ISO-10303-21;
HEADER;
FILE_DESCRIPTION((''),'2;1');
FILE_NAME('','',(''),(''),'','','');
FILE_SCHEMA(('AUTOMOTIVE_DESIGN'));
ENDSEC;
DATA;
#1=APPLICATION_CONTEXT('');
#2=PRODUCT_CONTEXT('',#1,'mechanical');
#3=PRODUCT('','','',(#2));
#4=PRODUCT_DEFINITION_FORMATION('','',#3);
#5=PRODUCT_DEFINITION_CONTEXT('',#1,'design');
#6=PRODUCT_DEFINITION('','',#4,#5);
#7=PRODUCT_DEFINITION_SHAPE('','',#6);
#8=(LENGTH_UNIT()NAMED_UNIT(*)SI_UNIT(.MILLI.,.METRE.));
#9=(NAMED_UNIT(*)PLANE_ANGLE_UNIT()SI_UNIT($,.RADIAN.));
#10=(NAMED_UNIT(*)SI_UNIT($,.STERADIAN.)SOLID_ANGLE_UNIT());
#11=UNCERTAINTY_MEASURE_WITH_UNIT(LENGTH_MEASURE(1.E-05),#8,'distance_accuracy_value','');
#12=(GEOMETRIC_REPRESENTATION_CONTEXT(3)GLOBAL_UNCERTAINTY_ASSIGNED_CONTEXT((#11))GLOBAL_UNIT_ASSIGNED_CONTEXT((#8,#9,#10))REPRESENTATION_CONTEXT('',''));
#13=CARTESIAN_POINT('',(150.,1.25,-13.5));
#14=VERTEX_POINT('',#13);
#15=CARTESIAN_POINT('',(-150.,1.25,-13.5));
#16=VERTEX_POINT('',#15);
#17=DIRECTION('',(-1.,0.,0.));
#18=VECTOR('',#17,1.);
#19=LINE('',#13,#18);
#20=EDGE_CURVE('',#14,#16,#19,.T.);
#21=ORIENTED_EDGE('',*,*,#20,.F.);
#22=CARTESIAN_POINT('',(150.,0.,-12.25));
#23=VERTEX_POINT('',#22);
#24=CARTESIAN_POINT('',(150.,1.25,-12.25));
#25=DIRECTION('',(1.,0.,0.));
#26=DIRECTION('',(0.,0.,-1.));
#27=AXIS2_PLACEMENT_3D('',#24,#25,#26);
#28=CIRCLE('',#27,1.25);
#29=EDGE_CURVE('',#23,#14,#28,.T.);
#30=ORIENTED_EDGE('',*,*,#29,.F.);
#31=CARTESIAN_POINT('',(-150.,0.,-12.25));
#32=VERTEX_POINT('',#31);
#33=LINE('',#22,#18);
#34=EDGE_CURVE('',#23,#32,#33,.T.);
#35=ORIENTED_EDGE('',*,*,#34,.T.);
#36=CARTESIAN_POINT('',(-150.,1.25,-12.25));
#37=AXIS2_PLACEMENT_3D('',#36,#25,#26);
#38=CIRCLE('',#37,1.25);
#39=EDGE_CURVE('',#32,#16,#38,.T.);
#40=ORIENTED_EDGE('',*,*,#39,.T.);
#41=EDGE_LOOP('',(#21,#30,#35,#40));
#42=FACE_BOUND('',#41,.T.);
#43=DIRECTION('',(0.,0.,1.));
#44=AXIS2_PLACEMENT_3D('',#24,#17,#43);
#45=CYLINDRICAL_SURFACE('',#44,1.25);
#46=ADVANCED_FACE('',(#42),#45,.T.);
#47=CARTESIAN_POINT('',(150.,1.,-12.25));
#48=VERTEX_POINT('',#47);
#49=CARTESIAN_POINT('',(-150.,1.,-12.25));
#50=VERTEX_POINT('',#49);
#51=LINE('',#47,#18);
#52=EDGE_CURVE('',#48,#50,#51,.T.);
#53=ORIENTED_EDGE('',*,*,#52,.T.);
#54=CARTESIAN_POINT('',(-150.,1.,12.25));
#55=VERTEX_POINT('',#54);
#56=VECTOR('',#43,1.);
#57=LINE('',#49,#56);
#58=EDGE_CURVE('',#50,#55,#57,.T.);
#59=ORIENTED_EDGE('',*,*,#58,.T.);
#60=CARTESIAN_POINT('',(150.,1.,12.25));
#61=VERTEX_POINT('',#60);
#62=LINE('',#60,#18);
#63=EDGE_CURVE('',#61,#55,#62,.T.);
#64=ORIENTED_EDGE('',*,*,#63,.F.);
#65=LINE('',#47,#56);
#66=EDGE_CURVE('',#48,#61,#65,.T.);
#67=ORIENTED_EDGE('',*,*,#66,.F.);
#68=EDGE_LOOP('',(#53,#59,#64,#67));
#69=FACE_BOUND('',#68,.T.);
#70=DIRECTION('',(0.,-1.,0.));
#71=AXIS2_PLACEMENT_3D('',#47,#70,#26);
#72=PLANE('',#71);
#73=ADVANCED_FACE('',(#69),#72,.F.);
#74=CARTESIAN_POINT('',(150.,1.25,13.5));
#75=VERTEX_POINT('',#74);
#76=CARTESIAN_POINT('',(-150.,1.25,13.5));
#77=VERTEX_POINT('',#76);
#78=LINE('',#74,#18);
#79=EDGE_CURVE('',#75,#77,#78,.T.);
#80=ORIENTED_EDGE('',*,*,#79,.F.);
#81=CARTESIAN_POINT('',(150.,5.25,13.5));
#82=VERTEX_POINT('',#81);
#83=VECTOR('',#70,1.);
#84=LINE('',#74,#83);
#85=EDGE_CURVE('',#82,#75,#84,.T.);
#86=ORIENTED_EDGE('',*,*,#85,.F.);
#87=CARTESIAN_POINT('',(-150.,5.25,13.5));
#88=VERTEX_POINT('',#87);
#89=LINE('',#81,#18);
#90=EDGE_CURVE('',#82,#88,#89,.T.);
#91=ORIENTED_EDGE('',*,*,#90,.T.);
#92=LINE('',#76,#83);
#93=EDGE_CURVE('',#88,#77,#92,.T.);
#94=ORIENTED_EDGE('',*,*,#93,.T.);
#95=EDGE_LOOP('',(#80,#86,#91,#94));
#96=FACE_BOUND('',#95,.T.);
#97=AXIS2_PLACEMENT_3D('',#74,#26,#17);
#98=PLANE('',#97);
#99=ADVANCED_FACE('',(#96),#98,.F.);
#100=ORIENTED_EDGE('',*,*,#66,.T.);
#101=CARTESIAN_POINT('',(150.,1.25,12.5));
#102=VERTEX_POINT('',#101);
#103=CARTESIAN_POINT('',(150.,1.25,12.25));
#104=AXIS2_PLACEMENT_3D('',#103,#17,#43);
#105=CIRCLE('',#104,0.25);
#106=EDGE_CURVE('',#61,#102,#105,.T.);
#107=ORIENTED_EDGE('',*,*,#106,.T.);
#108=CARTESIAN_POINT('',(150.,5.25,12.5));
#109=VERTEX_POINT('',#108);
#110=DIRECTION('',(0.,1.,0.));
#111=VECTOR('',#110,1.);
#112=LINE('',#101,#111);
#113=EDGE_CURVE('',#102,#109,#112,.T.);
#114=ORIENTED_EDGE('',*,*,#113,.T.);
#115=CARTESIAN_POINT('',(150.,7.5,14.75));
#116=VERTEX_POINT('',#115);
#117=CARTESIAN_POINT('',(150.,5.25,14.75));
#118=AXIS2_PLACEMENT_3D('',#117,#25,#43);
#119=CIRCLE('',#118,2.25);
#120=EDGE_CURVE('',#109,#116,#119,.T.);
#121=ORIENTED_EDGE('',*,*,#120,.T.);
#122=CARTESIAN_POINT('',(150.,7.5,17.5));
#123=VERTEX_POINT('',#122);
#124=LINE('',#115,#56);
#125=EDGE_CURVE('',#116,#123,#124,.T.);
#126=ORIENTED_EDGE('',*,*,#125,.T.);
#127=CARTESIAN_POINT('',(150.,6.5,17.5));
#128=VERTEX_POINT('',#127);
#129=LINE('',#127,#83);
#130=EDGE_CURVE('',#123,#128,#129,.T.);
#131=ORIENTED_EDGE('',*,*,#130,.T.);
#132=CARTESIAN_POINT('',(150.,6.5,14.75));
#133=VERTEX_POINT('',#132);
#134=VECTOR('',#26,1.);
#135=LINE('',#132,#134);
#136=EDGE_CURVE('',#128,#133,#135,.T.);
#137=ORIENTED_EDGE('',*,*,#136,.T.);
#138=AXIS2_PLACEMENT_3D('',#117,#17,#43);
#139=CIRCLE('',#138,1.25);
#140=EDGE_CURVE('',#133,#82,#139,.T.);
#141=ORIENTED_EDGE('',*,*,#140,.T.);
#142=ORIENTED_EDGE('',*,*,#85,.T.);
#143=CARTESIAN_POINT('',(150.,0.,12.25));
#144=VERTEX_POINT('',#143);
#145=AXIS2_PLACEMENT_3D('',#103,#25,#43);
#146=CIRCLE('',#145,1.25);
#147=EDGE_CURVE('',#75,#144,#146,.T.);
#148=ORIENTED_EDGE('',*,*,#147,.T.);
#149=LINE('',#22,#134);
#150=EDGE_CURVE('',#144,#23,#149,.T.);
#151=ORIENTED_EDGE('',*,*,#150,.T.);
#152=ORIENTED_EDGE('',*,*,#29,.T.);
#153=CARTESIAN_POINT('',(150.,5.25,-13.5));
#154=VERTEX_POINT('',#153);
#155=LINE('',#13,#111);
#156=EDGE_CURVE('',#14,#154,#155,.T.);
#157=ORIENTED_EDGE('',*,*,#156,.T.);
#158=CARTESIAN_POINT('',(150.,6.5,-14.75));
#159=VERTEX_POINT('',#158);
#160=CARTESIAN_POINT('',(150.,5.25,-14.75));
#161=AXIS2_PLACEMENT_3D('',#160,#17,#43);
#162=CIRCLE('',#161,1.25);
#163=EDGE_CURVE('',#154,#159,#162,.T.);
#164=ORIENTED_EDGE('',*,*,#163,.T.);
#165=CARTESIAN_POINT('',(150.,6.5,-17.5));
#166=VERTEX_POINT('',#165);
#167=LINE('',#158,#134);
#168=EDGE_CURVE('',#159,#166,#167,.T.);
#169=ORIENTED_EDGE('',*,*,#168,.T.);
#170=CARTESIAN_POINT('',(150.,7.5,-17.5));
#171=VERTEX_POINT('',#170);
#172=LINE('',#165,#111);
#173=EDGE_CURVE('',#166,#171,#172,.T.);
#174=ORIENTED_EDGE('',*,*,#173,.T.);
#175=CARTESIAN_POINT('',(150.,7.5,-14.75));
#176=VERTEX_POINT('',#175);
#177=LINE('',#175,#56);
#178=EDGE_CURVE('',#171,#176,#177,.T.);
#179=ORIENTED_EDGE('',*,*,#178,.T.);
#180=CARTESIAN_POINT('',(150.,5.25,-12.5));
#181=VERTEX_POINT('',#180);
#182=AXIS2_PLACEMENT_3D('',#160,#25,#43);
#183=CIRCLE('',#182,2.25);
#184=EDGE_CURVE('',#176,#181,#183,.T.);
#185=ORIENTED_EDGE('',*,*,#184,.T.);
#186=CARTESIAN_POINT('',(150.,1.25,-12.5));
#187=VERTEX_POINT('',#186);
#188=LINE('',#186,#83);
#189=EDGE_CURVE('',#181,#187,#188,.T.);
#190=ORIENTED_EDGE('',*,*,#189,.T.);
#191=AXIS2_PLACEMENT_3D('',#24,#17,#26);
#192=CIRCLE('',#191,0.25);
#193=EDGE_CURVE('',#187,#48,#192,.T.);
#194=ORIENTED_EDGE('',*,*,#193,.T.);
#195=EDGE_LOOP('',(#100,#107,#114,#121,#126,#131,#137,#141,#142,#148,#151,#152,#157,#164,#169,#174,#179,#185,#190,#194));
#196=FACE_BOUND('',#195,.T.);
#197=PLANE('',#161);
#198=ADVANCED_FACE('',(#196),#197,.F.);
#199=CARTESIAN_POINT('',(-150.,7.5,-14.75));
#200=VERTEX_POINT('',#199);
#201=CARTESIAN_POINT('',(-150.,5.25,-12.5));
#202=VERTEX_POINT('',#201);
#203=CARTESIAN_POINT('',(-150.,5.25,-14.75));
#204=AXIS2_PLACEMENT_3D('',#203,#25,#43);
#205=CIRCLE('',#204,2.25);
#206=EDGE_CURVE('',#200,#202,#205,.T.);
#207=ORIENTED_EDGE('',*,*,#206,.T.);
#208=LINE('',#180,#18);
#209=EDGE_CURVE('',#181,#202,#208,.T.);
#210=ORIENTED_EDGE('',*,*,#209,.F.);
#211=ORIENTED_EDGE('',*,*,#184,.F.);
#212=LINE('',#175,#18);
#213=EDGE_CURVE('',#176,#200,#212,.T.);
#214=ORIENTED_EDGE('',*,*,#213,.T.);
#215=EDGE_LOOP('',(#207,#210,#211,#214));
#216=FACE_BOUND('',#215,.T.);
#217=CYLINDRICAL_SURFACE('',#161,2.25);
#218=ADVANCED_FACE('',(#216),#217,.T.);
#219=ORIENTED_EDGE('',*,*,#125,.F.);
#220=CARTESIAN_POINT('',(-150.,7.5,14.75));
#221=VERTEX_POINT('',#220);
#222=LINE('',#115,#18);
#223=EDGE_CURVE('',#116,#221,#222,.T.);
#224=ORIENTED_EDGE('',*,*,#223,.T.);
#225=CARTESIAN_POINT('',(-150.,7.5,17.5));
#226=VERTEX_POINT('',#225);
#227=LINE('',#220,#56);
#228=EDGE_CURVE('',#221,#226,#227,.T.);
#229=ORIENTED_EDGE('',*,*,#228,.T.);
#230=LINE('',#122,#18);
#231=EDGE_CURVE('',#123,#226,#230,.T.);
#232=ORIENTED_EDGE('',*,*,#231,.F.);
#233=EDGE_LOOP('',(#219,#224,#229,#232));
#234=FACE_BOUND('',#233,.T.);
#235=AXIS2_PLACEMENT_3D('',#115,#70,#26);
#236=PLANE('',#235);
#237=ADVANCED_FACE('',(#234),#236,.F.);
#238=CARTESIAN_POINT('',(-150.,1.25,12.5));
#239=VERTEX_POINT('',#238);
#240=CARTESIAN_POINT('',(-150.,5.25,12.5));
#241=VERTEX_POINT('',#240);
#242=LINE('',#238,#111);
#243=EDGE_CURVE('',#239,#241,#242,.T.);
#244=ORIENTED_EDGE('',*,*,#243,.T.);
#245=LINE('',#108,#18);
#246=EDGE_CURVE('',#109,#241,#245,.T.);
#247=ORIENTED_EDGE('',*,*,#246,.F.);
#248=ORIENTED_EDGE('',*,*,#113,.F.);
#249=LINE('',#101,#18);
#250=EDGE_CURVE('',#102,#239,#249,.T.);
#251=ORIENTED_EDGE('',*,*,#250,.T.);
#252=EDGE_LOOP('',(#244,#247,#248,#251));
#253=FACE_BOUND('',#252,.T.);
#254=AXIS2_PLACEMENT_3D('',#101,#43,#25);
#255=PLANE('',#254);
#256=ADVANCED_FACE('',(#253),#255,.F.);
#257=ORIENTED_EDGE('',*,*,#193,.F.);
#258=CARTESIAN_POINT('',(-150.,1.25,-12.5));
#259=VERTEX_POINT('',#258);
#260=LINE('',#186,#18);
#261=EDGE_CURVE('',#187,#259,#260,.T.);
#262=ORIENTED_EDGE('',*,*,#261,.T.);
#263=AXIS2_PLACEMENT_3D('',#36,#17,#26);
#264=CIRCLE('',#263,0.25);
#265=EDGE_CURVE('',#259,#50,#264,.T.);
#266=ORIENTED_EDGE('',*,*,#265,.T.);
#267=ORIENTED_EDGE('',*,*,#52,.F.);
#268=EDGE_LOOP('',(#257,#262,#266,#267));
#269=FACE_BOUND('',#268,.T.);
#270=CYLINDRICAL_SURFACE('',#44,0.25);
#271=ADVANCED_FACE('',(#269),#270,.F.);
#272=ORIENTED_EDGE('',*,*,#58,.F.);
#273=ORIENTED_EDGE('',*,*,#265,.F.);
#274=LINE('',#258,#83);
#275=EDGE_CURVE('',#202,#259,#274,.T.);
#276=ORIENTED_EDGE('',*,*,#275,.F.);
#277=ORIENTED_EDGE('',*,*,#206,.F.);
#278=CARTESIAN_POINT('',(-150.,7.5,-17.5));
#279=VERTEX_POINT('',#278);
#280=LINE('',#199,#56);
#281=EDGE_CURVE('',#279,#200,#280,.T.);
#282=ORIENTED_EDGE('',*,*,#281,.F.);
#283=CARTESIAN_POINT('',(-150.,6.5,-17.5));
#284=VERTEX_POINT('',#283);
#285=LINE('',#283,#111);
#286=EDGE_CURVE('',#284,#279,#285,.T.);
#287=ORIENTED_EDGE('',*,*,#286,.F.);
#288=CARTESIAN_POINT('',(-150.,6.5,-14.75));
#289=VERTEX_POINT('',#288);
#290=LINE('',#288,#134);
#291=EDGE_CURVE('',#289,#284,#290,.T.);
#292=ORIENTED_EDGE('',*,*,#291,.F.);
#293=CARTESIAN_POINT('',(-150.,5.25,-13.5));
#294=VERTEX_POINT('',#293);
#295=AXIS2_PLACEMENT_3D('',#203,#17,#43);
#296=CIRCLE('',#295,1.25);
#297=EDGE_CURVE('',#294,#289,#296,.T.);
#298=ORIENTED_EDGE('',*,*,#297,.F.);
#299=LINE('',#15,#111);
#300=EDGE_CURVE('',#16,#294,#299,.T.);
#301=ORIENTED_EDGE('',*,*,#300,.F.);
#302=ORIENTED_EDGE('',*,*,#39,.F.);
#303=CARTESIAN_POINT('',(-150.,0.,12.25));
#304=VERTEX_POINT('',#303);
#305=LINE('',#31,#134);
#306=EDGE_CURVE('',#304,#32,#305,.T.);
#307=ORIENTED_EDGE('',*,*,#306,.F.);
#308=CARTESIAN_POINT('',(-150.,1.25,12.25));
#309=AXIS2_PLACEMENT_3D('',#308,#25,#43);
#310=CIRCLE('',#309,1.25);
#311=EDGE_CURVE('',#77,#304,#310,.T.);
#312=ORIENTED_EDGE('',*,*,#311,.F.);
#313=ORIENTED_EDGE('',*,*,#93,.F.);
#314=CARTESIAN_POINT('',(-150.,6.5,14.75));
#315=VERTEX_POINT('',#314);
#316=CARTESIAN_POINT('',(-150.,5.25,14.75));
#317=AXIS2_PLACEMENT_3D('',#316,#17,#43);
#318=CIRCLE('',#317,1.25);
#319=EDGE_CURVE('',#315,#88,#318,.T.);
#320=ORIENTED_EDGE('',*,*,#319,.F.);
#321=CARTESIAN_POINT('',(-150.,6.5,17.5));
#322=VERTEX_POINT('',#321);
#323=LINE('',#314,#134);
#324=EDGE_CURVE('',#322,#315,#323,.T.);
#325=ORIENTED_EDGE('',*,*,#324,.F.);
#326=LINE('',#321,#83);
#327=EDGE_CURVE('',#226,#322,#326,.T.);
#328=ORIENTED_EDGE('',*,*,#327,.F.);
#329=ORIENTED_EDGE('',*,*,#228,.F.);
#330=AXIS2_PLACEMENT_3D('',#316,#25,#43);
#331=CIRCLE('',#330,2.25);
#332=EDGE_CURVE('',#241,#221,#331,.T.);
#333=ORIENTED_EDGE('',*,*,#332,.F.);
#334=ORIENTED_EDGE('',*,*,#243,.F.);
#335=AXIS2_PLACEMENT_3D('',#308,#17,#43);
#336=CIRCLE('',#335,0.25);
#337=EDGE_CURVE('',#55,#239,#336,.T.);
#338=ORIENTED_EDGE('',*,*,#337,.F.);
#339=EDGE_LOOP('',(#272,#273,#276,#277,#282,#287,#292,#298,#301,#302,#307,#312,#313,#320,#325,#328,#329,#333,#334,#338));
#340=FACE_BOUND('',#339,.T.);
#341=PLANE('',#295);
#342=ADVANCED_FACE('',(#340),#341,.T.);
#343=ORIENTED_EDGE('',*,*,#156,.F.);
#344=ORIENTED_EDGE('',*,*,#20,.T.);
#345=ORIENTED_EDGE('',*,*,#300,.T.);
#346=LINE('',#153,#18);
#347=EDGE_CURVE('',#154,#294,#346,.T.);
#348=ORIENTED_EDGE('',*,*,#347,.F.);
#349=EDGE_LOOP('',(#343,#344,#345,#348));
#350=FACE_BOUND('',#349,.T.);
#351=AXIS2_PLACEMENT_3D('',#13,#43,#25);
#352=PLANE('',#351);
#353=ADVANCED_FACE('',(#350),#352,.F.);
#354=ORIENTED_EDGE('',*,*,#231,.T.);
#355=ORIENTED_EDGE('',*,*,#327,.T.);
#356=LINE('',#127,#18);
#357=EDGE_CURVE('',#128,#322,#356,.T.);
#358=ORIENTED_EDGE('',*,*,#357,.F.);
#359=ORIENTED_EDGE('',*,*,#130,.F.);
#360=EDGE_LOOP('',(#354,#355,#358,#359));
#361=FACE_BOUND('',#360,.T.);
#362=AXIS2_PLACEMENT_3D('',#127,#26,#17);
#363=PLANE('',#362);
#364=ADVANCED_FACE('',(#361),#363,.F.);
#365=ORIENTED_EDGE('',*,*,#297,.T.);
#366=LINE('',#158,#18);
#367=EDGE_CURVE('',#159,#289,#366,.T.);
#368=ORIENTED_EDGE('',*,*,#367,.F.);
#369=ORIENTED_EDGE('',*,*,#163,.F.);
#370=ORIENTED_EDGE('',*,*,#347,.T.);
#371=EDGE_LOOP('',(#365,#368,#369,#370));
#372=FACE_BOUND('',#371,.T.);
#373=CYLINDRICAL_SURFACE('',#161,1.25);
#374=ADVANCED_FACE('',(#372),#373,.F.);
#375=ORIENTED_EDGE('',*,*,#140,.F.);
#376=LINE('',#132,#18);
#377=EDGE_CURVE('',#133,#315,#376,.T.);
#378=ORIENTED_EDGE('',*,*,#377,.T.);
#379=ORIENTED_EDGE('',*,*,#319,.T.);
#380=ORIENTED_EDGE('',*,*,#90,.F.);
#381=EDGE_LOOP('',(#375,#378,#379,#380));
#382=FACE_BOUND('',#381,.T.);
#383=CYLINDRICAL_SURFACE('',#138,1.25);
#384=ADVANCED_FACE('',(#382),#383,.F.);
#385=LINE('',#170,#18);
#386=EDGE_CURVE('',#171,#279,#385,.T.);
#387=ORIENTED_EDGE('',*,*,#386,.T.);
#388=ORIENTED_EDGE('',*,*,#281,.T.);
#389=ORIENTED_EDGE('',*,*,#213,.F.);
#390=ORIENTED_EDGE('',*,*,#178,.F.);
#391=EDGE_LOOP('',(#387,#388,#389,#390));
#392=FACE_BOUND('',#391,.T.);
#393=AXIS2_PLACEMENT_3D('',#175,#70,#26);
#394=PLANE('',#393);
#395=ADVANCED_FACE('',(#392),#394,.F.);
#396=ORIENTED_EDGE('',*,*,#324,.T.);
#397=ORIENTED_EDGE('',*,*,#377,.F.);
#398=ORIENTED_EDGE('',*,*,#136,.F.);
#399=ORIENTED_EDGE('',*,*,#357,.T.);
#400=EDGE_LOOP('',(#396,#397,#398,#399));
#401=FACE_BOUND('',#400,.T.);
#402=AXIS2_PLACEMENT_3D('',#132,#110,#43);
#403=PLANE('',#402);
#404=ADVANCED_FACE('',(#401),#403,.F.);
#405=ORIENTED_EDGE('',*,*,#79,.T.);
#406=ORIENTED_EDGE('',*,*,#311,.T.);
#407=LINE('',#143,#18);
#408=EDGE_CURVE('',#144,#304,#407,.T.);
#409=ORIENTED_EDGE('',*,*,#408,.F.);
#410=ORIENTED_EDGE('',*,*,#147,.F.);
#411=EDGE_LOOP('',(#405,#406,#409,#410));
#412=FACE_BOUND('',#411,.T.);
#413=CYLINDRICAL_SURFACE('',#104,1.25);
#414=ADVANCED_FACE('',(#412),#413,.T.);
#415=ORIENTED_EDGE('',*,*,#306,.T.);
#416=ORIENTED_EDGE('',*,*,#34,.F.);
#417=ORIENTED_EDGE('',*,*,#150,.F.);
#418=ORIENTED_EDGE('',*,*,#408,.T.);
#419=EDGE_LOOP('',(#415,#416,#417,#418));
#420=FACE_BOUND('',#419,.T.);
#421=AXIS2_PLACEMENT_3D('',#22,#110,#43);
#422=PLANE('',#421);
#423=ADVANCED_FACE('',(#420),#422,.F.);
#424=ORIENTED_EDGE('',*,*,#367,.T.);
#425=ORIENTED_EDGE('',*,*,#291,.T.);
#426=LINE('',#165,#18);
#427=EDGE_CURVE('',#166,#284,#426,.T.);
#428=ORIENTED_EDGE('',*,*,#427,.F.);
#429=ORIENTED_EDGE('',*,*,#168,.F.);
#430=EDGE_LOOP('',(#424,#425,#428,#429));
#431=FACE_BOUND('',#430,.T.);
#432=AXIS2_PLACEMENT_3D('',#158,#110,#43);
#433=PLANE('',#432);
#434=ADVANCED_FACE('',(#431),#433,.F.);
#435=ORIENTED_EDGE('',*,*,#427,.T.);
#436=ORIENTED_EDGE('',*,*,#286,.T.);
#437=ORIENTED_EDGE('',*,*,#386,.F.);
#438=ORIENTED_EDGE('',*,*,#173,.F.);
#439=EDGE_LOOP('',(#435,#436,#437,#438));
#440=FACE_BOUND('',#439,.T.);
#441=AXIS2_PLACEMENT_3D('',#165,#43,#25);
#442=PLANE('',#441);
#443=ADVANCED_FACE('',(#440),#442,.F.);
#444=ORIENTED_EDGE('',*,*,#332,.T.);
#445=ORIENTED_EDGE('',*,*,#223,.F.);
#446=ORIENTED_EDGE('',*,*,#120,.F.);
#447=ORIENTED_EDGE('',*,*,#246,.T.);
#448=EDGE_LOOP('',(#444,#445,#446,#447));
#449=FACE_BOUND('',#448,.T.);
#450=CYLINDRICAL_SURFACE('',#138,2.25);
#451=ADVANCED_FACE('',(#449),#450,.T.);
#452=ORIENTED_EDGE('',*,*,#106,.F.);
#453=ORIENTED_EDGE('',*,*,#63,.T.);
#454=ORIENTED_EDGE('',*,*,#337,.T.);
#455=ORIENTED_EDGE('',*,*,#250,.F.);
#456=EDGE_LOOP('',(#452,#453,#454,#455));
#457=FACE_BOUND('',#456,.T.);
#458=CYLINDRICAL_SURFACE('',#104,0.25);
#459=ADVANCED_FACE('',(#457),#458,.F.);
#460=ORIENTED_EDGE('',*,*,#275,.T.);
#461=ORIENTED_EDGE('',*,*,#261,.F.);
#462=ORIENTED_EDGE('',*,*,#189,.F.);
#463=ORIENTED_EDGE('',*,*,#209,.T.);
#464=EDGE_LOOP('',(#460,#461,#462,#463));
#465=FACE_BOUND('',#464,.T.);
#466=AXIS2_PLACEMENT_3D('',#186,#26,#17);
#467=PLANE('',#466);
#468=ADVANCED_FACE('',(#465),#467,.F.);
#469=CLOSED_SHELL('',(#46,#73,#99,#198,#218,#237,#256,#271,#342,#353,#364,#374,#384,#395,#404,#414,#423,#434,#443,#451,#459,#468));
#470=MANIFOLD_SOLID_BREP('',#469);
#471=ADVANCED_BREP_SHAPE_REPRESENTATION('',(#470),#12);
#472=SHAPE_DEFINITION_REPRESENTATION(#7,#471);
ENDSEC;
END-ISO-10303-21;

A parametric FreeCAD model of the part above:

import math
import FreeCAD as App
import Part
import Sketcher

V = App.Vector

doc = App.newDocument("Part")
body = doc.addObject("PartDesign::Body", "Body")

# Sketch on YZ plane
sketch1 = doc.addObject("Sketcher::SketchObject", "Sketch")
body.addObject(sketch1)
sketch1.AttachmentSupport = (doc.YZ_Plane, [""])
sketch1.MapMode = "FlatFace"
sketch1.AttachmentOffset = App.Placement(V(0, 0, -150), App.Rotation())
sketch1.addGeometry([
    Part.LineSegment(V(0, 12.25, 0), V(0, -12.25, 0)),  # 0
    Part.ArcOfCircle(Part.Circle(V(1.25, -12.25, 0), V(0, 0, 1), 1.25), math.radians(-180), math.radians(-90)),  # 1
    Part.LineSegment(V(1.25, -13.5, 0), V(5.25, -13.5, 0)),  # 2
    Part.ArcOfCircle(Part.Circle(V(5.25, -14.75, 0), V(0, 0, 1), 1.25), math.radians(0), math.radians(90)),  # 3
    Part.LineSegment(V(6.5, -14.75, 0), V(6.5, -17.5, 0)),  # 4
    Part.LineSegment(V(6.5, -17.5, 0), V(7.5, -17.5, 0)),  # 5
    Part.LineSegment(V(7.5, -17.5, 0), V(7.5, -14.75, 0)),  # 6
    Part.ArcOfCircle(Part.Circle(V(5.25, -14.75, 0), V(0, 0, 1), 2.25), math.radians(0), math.radians(90)),  # 7
    Part.LineSegment(V(5.25, -12.5, 0), V(1.25, -12.5, 0)),  # 8
    Part.ArcOfCircle(Part.Circle(V(1.25, -12.25, 0), V(0, 0, 1), 0.25), math.radians(-180), math.radians(-90)),  # 9
    Part.LineSegment(V(1, -12.25, 0), V(1, 12.25, 0)),  # 10
    Part.ArcOfCircle(Part.Circle(V(1.25, 12.25, 0), V(0, 0, 1), 0.25), math.radians(90), math.radians(180)),  # 11
    Part.LineSegment(V(1.25, 12.5, 0), V(5.25, 12.5, 0)),  # 12
    Part.ArcOfCircle(Part.Circle(V(5.25, 14.75, 0), V(0, 0, 1), 2.25), math.radians(-90), math.radians(0)),  # 13
    Part.LineSegment(V(7.5, 14.75, 0), V(7.5, 17.5, 0)),  # 14
    Part.LineSegment(V(7.5, 17.5, 0), V(6.5, 17.5, 0)),  # 15
    Part.LineSegment(V(6.5, 17.5, 0), V(6.5, 14.75, 0)),  # 16
    Part.ArcOfCircle(Part.Circle(V(5.25, 14.75, 0), V(0, 0, 1), 1.25), math.radians(-90), math.radians(0)),  # 17
    Part.LineSegment(V(5.25, 13.5, 0), V(1.25, 13.5, 0)),  # 18
    Part.ArcOfCircle(Part.Circle(V(1.25, 12.25, 0), V(0, 0, 1), 1.25), math.radians(90), math.radians(180)),  # 19
], False)
sketch1.addConstraint([
    Sketcher.Constraint("Tangent", 0, 2, 1, 1),
    Sketcher.Constraint("Tangent", 1, 2, 2, 1),
    Sketcher.Constraint("Tangent", 2, 2, 3, 2),
    Sketcher.Constraint("Tangent", 3, 1, 4, 1),
    Sketcher.Constraint("Coincident", 4, 2, 5, 1),
    Sketcher.Constraint("Coincident", 5, 2, 6, 1),
    Sketcher.Constraint("Tangent", 6, 2, 7, 1),
    Sketcher.Constraint("Tangent", 7, 2, 8, 1),
    Sketcher.Constraint("Tangent", 8, 2, 9, 2),
    Sketcher.Constraint("Tangent", 9, 1, 10, 1),
    Sketcher.Constraint("Tangent", 10, 2, 11, 2),
    Sketcher.Constraint("Tangent", 11, 1, 12, 1),
    Sketcher.Constraint("Tangent", 12, 2, 13, 1),
    Sketcher.Constraint("Tangent", 13, 2, 14, 1),
    Sketcher.Constraint("Coincident", 14, 2, 15, 1),
    Sketcher.Constraint("Coincident", 15, 2, 16, 1),
    Sketcher.Constraint("Tangent", 16, 2, 17, 2),
    Sketcher.Constraint("Tangent", 17, 1, 18, 1),
    Sketcher.Constraint("Tangent", 18, 2, 19, 1),
    Sketcher.Constraint("Tangent", 19, 2, 0, 1),
    Sketcher.Constraint("Vertical", 0),
    Sketcher.Constraint("Horizontal", 2),
    Sketcher.Constraint("Vertical", 4),
    Sketcher.Constraint("Horizontal", 5),
    Sketcher.Constraint("Vertical", 6),
    Sketcher.Constraint("Horizontal", 8),
    Sketcher.Constraint("Vertical", 10),
    Sketcher.Constraint("Horizontal", 12),
    Sketcher.Constraint("Vertical", 14),
    Sketcher.Constraint("Horizontal", 15),
    Sketcher.Constraint("Vertical", 16),
    Sketcher.Constraint("Horizontal", 18),
    Sketcher.Constraint("Coincident", 7, 3, 3, 3),
    Sketcher.Constraint("Coincident", 9, 3, 1, 3),
    Sketcher.Constraint("Coincident", 17, 3, 13, 3),
    Sketcher.Constraint("Coincident", 19, 3, 11, 3),
    Sketcher.Constraint("Equal", 1, 3),
    Sketcher.Constraint("Equal", 9, 11),
    Sketcher.Constraint("Equal", 7, 13),
    Sketcher.Constraint("Symmetric", 0, 2, 19, 2, -1, 1),
    Sketcher.Constraint("Symmetric", 5, 2, 14, 2, -1),
    Sketcher.Constraint("DistanceX", 2, 1, 2, 2, 4.0),
    Sketcher.Constraint("DistanceX", 5, 1, 5, 2, 1.0),
    Sketcher.Constraint("Radius", 1, 1.25),
    Sketcher.Constraint("DistanceY", 0, 2, 0, 1, 24.5),
    Sketcher.Constraint("DistanceY", 4, 2, 2, 2, 4.0),
])
pad1 = doc.addObject("PartDesign::Pad", "Pad")
body.addObject(pad1)
pad1.Profile = sketch1
pad1.Length = 300

doc.recompute()
